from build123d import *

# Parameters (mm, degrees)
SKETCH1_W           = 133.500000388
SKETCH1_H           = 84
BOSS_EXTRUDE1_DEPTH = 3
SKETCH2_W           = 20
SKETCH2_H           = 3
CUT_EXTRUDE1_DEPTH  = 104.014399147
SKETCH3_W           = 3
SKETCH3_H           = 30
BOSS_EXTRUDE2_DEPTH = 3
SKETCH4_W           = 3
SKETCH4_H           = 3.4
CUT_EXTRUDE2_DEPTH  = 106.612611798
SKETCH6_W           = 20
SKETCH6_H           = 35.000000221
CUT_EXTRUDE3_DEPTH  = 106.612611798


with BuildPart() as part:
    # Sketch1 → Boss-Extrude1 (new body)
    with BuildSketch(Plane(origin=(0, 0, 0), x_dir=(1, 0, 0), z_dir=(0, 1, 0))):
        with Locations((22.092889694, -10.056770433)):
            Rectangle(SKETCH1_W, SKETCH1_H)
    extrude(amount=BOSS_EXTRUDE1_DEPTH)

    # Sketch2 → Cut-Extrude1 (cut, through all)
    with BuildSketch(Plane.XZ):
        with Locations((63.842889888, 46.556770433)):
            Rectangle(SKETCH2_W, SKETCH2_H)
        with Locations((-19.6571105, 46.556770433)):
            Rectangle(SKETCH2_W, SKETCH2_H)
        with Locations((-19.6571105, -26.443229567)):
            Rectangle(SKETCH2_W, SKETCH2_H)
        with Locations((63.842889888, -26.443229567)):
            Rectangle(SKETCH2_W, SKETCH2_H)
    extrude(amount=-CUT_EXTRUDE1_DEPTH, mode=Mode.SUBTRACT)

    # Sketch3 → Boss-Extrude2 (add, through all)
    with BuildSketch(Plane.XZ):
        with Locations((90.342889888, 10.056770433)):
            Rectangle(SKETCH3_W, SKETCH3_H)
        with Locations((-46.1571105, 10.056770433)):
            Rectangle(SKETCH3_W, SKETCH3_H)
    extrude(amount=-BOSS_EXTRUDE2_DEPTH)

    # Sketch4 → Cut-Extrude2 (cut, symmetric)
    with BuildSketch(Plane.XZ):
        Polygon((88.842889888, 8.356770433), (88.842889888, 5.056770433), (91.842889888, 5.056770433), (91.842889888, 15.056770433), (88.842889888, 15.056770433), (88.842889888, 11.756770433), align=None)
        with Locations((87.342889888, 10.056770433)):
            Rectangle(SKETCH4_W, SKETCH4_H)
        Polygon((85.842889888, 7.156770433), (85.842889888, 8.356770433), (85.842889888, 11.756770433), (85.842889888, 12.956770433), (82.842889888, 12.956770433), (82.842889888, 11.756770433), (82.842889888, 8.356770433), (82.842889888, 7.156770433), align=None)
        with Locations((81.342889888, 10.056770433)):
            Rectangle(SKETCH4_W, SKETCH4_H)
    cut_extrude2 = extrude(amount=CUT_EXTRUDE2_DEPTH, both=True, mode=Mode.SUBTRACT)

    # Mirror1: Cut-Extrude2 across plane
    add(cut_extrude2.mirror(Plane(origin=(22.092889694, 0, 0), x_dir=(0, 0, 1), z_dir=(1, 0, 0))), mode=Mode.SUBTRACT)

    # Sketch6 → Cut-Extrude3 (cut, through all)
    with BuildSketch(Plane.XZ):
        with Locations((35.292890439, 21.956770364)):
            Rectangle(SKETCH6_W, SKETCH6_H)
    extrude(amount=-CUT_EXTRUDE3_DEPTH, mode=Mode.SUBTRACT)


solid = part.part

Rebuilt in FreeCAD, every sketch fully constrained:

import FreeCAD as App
import Part
import Sketcher

doc = App.newDocument("Part")
body = doc.addObject("PartDesign::Body", "Body")

sketch1 = doc.addObject("Sketcher::SketchObject", "Sketch")
body.addObject(sketch1)
sketch1.AttachmentSupport = (doc.XZ_Plane, [""])
sketch1.MapMode = "FlatFace"
sketch1.addGeometry([
    Part.LineSegment(App.Vector(-45, -32, 0), App.Vector(-45, 52, 0)),
    Part.LineSegment(App.Vector(-45, 52, 0), App.Vector(89, 52, 0)),
    Part.LineSegment(App.Vector(89, 52, 0), App.Vector(89, -32, 0)),
    Part.LineSegment(App.Vector(89, -32, 0), App.Vector(-45, -32, 0)),
], False)
sketch1.addConstraint([
    Sketcher.Constraint("Coincident", 0, 2, 1, 1),
    Sketcher.Constraint("Coincident", 1, 2, 2, 1),
    Sketcher.Constraint("Coincident", 2, 2, 3, 1),
    Sketcher.Constraint("Coincident", 3, 2, 0, 1),
    Sketcher.Constraint("Vertical", 0),
    Sketcher.Constraint("Horizontal", 1),
    Sketcher.Constraint("Vertical", 2),
    Sketcher.Constraint("Horizontal", 3),
    Sketcher.Constraint("DistanceY", 0, 1, 0, 2, 84.0),
    Sketcher.Constraint("DistanceX", 1, 1, 1, 2, 133.5),
    Sketcher.Constraint("DistanceX", 0, 2, -1, 1, 44.657111),
    Sketcher.Constraint("DistanceY", -1, 1, 0, 2, 52.05677),
])
pad1 = doc.addObject("PartDesign::Pad", "Pad")
body.addObject(pad1)
pad1.Profile = sketch1
pad1.Length = 3
pad1.Reversed = True

sketch2 = doc.addObject("Sketcher::SketchObject", "Sketch001")
body.addObject(sketch2)
sketch2.AttachmentSupport = (doc.XZ_Plane, [""])
sketch2.MapMode = "FlatFace"
sketch2.addGeometry([
    Part.LineSegment(App.Vector(53.8, 48.1, 0), App.Vector(53.8, 45.1, 0)),
    Part.LineSegment(App.Vector(53.8, 45.1, 0), App.Vector(73.8, 45.1, 0)),
    Part.LineSegment(App.Vector(73.8, 45.1, 0), App.Vector(73.8, 48.1, 0)),
    Part.LineSegment(App.Vector(73.8, 48.1, 0), App.Vector(53.8, 48.1, 0)),
    Part.LineSegment(App.Vector(-29.7, 48.1, 0), App.Vector(-29.7, 45.1, 0)),
    Part.LineSegment(App.Vector(-29.7, 45.1, 0), App.Vector(-9.7, 45.1, 0)),
    Part.LineSegment(App.Vector(-9.7, 45.1, 0), App.Vector(-9.7, 48.1, 0)),
    Part.LineSegment(App.Vector(-9.7, 48.1, 0), App.Vector(-29.7, 48.1, 0)),
    Part.LineSegment(App.Vector(-29.7, -24.9, 0), App.Vector(-29.7, -27.9, 0)),
    Part.LineSegment(App.Vector(-29.7, -27.9, 0), App.Vector(-9.7, -27.9, 0)),
    Part.LineSegment(App.Vector(-9.7, -27.9, 0), App.Vector(-9.7, -24.9, 0)),
    Part.LineSegment(App.Vector(-9.7, -24.9, 0), App.Vector(-29.7, -24.9, 0)),
    Part.LineSegment(App.Vector(53.8, -24.9, 0), App.Vector(53.8, -27.9, 0)),
    Part.LineSegment(App.Vector(53.8, -27.9, 0), App.Vector(73.8, -27.9, 0)),
    Part.LineSegment(App.Vector(73.8, -27.9, 0), App.Vector(73.8, -24.9, 0)),
    Part.LineSegment(App.Vector(73.8, -24.9, 0), App.Vector(53.8, -24.9, 0)),
], False)
sketch2.addConstraint([
    Sketcher.Constraint("Coincident", 0, 2, 1, 1),
    Sketcher.Constraint("Coincident", 1, 2, 2, 1),
    Sketcher.Constraint("Coincident", 2, 2, 3, 1),
    Sketcher.Constraint("Coincident", 3, 2, 0, 1),
    Sketcher.Constraint("Coincident", 4, 2, 5, 1),
    Sketcher.Constraint("Coincident", 5, 2, 6, 1),
    Sketcher.Constraint("Coincident", 6, 2, 7, 1),
    Sketcher.Constraint("Coincident", 7, 2, 4, 1),
    Sketcher.Constraint("Coincident", 8, 2, 9, 1),
    Sketcher.Constraint("Coincident", 9, 2, 10, 1),
    Sketcher.Constraint("Coincident", 10, 2, 11, 1),
    Sketcher.Constraint("Coincident", 11, 2, 8, 1),
    Sketcher.Constraint("Coincident", 12, 2, 13, 1),
    Sketcher.Constraint("Coincident", 13, 2, 14, 1),
    Sketcher.Constraint("Coincident", 14, 2, 15, 1),
    Sketcher.Constraint("Coincident", 15, 2, 12, 1),
    Sketcher.Constraint("Vertical", 0),
    Sketcher.Constraint("Horizontal", 1),
    Sketcher.Constraint("Vertical", 2),
    Sketcher.Constraint("Horizontal", 3),
    Sketcher.Constraint("Vertical", 4),
    Sketcher.Constraint("Horizontal", 5),
    Sketcher.Constraint("Vertical", 6),
    Sketcher.Constraint("Horizontal", 7),
    Sketcher.Constraint("Vertical", 8),
    Sketcher.Constraint("Horizontal", 9),
    Sketcher.Constraint("Vertical", 10),
    Sketcher.Constraint("Horizontal", 11),
    Sketcher.Constraint("Vertical", 12),
    Sketcher.Constraint("Horizontal", 13),
    Sketcher.Constraint("Vertical", 14),
    Sketcher.Constraint("Horizontal", 15),
    Sketcher.Constraint("Horizontal", 1, 2, 4, 2),
    Sketcher.Constraint("Horizontal", 3, 2, 6, 2),
    Sketcher.Constraint("Horizontal", 9, 2, 12, 2),
    Sketcher.Constraint("Horizontal", 11, 2, 14, 2),
    Sketcher.Constraint("Vertical", 7, 2, 8, 2),
    Sketcher.Constraint("Vertical", 6, 2, 9, 2),
    Sketcher.Constraint("Vertical", 3, 2, 12, 2),
    Sketcher.Constraint("Vertical", 2, 2, 13, 2),
    Sketcher.Constraint("Equal", 3, 5),
    Sketcher.Constraint("Equal", 6, 8),
    Sketcher.Constraint("DistanceX", 1, 1, 1, 2, 20.0),
    Sketcher.Constraint("DistanceY", 0, 2, 0, 1, 3.0),
    Sketcher.Constraint("DistanceY", 8, 2, 4, 2, 73.0),
    Sketcher.Constraint("DistanceX", 4, 2, 0, 2, 83.5),
    Sketcher.Constraint("DistanceX", -1, 1, 0, 2, 53.84289),
    Sketcher.Constraint("DistanceY", -1, 1, 0, 2, 45.05677),
])
pocket1 = doc.addObject("PartDesign::Pocket", "Pocket")
body.addObject(pocket1)
pocket1.Profile = sketch2
pocket1.Type = "ThroughAll"

sketch3 = doc.addObject("Sketcher::SketchObject", "Sketch002")
body.addObject(sketch3)
sketch3.AttachmentSupport = (doc.XZ_Plane, [""])
sketch3.MapMode = "FlatFace"
sketch3.addGeometry([
    Part.LineSegment(App.Vector(88.8, 25.1, 0), App.Vector(88.8, -4.9, 0)),
    Part.LineSegment(App.Vector(88.8, -4.9, 0), App.Vector(91.8, -4.9, 0)),
    Part.LineSegment(App.Vector(91.8, -4.9, 0), App.Vector(91.8, 25.1, 0)),
    Part.LineSegment(App.Vector(91.8, 25.1, 0), App.Vector(88.8, 25.1, 0)),
    Part.LineSegment(App.Vector(-47.7, 25.1, 0), App.Vector(-47.7, -4.9, 0)),
    Part.LineSegment(App.Vector(-47.7, -4.9, 0), App.Vector(-44.7, -4.9, 0)),
    Part.LineSegment(App.Vector(-44.7, -4.9, 0), App.Vector(-44.7, 25.1, 0)),
    Part.LineSegment(App.Vector(-44.7, 25.1, 0), App.Vector(-47.7, 25.1, 0)),
], False)
sketch3.addConstraint([
    Sketcher.Constraint("Coincident", 0, 2, 1, 1),
    Sketcher.Constraint("Coincident", 1, 2, 2, 1),
    Sketcher.Constraint("Coincident", 2, 2, 3, 1),
    Sketcher.Constraint("Coincident", 3, 2, 0, 1),
    Sketcher.Constraint("Coincident", 4, 2, 5, 1),
    Sketcher.Constraint("Coincident", 5, 2, 6, 1),
    Sketcher.Constraint("Coincident", 6, 2, 7, 1),
    Sketcher.Constraint("Coincident", 7, 2, 4, 1),
    Sketcher.Constraint("Vertical", 0),
    Sketcher.Constraint("Horizontal", 1),
    Sketcher.Constraint("Vertical", 2),
    Sketcher.Constraint("Horizontal", 3),
    Sketcher.Constraint("Vertical", 4),
    Sketcher.Constraint("Horizontal", 5),
    Sketcher.Constraint("Vertical", 6),
    Sketcher.Constraint("Horizontal", 7),
    Sketcher.Constraint("Horizontal", 1, 2, 4, 2),
    Sketcher.Constraint("Horizontal", 3, 2, 6, 2),
    Sketcher.Constraint("Equal", 3, 5),
    Sketcher.Constraint("DistanceX", 1, 1, 1, 2, 3.0),
    Sketcher.Constraint("DistanceY", 0, 2, 0, 1, 30.0),
    Sketcher.Constraint("DistanceX", 4, 2, 0, 2, 136.5),
    Sketcher.Constraint("DistanceX", -1, 1, 0, 2, 88.84289),
    Sketcher.Constraint("DistanceY", 0, 2, -1, 1, 4.94323),
])
pad2 = doc.addObject("PartDesign::Pad", "Pad001")
body.addObject(pad2)
pad2.Profile = sketch3
pad2.Type = "UpToLast"
pad2.Reversed = True

sketch4 = doc.addObject("Sketcher::SketchObject", "Sketch003")
body.addObject(sketch4)
sketch4.AttachmentSupport = (doc.XZ_Plane, [""])
sketch4.MapMode = "FlatFace"
sketch4.addGeometry([
    Part.LineSegment(App.Vector(88.8, 5.1, 0), App.Vector(91.8, 5.1, 0)),
    Part.LineSegment(App.Vector(91.8, 5.1, 0), App.Vector(91.8, 15.1, 0)),
    Part.LineSegment(App.Vector(91.8, 15.1, 0), App.Vector(88.8, 15.1, 0)),
    Part.LineSegment(App.Vector(88.8, 15.1, 0), App.Vector(88.8, 11.8, 0)),
    Part.LineSegment(App.Vector(88.8, 11.8, 0), App.Vector(85.8, 11.8, 0)),
    Part.LineSegment(App.Vector(85.8, 11.8, 0), App.Vector(85.8, 13, 0)),
    Part.LineSegment(App.Vector(85.8, 13, 0), App.Vector(82.8, 13, 0)),
    Part.LineSegment(App.Vector(82.8, 13, 0), App.Vector(82.8, 11.8, 0)),
    Part.LineSegment(App.Vector(82.8, 11.8, 0), App.Vector(79.8, 11.8, 0)),
    Part.LineSegment(App.Vector(79.8, 11.8, 0), App.Vector(79.8, 8.4, 0)),
    Part.LineSegment(App.Vector(79.8, 8.4, 0), App.Vector(82.8, 8.4, 0)),
    Part.LineSegment(App.Vector(82.8, 8.4, 0), App.Vector(82.8, 7.2, 0)),
    Part.LineSegment(App.Vector(82.8, 7.2, 0), App.Vector(85.8, 7.2, 0)),
    Part.LineSegment(App.Vector(85.8, 7.2, 0), App.Vector(85.8, 8.4, 0)),
    Part.LineSegment(App.Vector(85.8, 8.4, 0), App.Vector(88.8, 8.4, 0)),
    Part.LineSegment(App.Vector(88.8, 8.4, 0), App.Vector(88.8, 5.1, 0)),
], False)
sketch4.addConstraint([
    Sketcher.Constraint("Coincident", 0, 2, 1, 1),
    Sketcher.Constraint("Coincident", 1, 2, 2, 1),
    Sketcher.Constraint("Coincident", 2, 2, 3, 1),
    Sketcher.Constraint("Coincident", 3, 2, 4, 1),
    Sketcher.Constraint("Coincident", 4, 2, 5, 1),
    Sketcher.Constraint("Coincident", 5, 2, 6, 1),
    Sketcher.Constraint("Coincident", 6, 2, 7, 1),
    Sketcher.Constraint("Coincident", 7, 2, 8, 1),
    Sketcher.Constraint("Coincident", 8, 2, 9, 1),
    Sketcher.Constraint("Coincident", 9, 2, 10, 1),
    Sketcher.Constraint("Coincident", 10, 2, 11, 1),
    Sketcher.Constraint("Coincident", 11, 2, 12, 1),
    Sketcher.Constraint("Coincident", 12, 2, 13, 1),
    Sketcher.Constraint("Coincident", 13, 2, 14, 1),
    Sketcher.Constraint("Coincident", 14, 2, 15, 1),
    Sketcher.Constraint("Coincident", 15, 2, 0, 1),
    Sketcher.Constraint("Horizontal", 0),
    Sketcher.Constraint("Vertical", 1),
    Sketcher.Constraint("Horizontal", 2),
    Sketcher.Constraint("Vertical", 3),
    Sketcher.Constraint("Horizontal", 4),
    Sketcher.Constraint("Vertical", 5),
    Sketcher.Constraint("Horizontal", 6),
    Sketcher.Constraint("Vertical", 7),
    Sketcher.Constraint("Horizontal", 8),
    Sketcher.Constraint("Vertical", 9),
    Sketcher.Constraint("Horizontal", 10),
    Sketcher.Constraint("Vertical", 11),
    Sketcher.Constraint("Horizontal", 12),
    Sketcher.Constraint("Vertical", 13),
    Sketcher.Constraint("Horizontal", 14),
    Sketcher.Constraint("Vertical", 15),
    Sketcher.Constraint("Horizontal", 4, 2, 7, 2),
    Sketcher.Constraint("Horizontal", 10, 2, 13, 2),
    Sketcher.Constraint("Vertical", 7, 2, 10, 2),
    Sketcher.Constraint("Vertical", 5, 2, 12, 2),
    Sketcher.Constraint("Vertical", 3, 2, 14, 2),
    Sketcher.Constraint("Equal", 2, 4),
    Sketcher.Constraint("Equal", 4, 6),
    Sketcher.Constraint("Equal", 6, 8),
    Sketcher.Constraint("Equal", 7, 11),
    Sketcher.Constraint("Equal", 3, 15),
    Sketcher.Constraint("DistanceX", 0, 1, 0, 2, 3.0),
    Sketcher.Constraint("DistanceY", 1, 1, 1, 2, 10.0),
    Sketcher.Constraint("DistanceY", 3, 2, 3, 1, 3.3),
    Sketcher.Constraint("DistanceY", 5, 1, 5, 2, 1.2),
    Sketcher.Constraint("DistanceX", -1, 1, 0, 2, 91.84289),
    Sketcher.Constraint("DistanceY", -1, 1, 0, 2, 5.05677),
])
pocket2 = doc.addObject("PartDesign::Pocket", "Pocket001")
body.addObject(pocket2)
pocket2.Profile = sketch4
pocket2.Length = 213.225224
pocket2.Midplane = True
doc.recompute()

datumplane = doc.addObject("PartDesign::Plane", "DatumPlane")
body.addObject(datumplane)
datumplane.AttachmentSupport = (doc.YZ_Plane, [""])
datumplane.MapMode = "FlatFace"
datumplane.AttachmentOffset = App.Placement(App.Vector(0, 0, 22.09289), App.Rotation())
mirrored = doc.addObject("PartDesign::Mirrored", "Mirrored")
body.addObject(mirrored)
mirrored.Originals = [pocket2]
mirrored.MirrorPlane = (datumplane, [""])
body.Tip = mirrored

sketch5 = doc.addObject("Sketcher::SketchObject", "Sketch004")
body.addObject(sketch5)
sketch5.AttachmentSupport = (doc.XZ_Plane, [""])
sketch5.MapMode = "FlatFace"
sketch5.addGeometry([
    Part.LineSegment(App.Vector(25, 39, 0), App.Vector(25, 4, 0)),
    Part.LineSegment(App.Vector(25, 4, 0), App.Vector(45, 4, 0)),
    Part.LineSegment(App.Vector(45, 4, 0), App.Vector(45, 39, 0)),
    Part.LineSegment(App.Vector(45, 39, 0), App.Vector(25, 39, 0)),
], False)
sketch5.addConstraint([
    Sketcher.Constraint("Coincident", 0, 2, 1, 1),
    Sketcher.Constraint("Coincident", 1, 2, 2, 1),
    Sketcher.Constraint("Coincident", 2, 2, 3, 1),
    Sketcher.Constraint("Coincident", 3, 2, 0, 1),
    Sketcher.Constraint("Vertical", 0),
    Sketcher.Constraint("Horizontal", 1),
    Sketcher.Constraint("Vertical", 2),
    Sketcher.Constraint("Horizontal", 3),
    Sketcher.Constraint("DistanceX", 1, 1, 1, 2, 20.0),
    Sketcher.Constraint("DistanceY", 0, 2, 0, 1, 35.0),
    Sketcher.Constraint("DistanceX", -1, 1, 0, 2, 25.29289),
    Sketcher.Constraint("DistanceY", -1, 1, 0, 2, 4.45677),
])
pocket3 = doc.addObject("PartDesign::Pocket", "Pocket002")
body.addObject(pocket3)
pocket3.Profile = sketch5
pocket3.Type = "ThroughAll"

doc.recompute()
